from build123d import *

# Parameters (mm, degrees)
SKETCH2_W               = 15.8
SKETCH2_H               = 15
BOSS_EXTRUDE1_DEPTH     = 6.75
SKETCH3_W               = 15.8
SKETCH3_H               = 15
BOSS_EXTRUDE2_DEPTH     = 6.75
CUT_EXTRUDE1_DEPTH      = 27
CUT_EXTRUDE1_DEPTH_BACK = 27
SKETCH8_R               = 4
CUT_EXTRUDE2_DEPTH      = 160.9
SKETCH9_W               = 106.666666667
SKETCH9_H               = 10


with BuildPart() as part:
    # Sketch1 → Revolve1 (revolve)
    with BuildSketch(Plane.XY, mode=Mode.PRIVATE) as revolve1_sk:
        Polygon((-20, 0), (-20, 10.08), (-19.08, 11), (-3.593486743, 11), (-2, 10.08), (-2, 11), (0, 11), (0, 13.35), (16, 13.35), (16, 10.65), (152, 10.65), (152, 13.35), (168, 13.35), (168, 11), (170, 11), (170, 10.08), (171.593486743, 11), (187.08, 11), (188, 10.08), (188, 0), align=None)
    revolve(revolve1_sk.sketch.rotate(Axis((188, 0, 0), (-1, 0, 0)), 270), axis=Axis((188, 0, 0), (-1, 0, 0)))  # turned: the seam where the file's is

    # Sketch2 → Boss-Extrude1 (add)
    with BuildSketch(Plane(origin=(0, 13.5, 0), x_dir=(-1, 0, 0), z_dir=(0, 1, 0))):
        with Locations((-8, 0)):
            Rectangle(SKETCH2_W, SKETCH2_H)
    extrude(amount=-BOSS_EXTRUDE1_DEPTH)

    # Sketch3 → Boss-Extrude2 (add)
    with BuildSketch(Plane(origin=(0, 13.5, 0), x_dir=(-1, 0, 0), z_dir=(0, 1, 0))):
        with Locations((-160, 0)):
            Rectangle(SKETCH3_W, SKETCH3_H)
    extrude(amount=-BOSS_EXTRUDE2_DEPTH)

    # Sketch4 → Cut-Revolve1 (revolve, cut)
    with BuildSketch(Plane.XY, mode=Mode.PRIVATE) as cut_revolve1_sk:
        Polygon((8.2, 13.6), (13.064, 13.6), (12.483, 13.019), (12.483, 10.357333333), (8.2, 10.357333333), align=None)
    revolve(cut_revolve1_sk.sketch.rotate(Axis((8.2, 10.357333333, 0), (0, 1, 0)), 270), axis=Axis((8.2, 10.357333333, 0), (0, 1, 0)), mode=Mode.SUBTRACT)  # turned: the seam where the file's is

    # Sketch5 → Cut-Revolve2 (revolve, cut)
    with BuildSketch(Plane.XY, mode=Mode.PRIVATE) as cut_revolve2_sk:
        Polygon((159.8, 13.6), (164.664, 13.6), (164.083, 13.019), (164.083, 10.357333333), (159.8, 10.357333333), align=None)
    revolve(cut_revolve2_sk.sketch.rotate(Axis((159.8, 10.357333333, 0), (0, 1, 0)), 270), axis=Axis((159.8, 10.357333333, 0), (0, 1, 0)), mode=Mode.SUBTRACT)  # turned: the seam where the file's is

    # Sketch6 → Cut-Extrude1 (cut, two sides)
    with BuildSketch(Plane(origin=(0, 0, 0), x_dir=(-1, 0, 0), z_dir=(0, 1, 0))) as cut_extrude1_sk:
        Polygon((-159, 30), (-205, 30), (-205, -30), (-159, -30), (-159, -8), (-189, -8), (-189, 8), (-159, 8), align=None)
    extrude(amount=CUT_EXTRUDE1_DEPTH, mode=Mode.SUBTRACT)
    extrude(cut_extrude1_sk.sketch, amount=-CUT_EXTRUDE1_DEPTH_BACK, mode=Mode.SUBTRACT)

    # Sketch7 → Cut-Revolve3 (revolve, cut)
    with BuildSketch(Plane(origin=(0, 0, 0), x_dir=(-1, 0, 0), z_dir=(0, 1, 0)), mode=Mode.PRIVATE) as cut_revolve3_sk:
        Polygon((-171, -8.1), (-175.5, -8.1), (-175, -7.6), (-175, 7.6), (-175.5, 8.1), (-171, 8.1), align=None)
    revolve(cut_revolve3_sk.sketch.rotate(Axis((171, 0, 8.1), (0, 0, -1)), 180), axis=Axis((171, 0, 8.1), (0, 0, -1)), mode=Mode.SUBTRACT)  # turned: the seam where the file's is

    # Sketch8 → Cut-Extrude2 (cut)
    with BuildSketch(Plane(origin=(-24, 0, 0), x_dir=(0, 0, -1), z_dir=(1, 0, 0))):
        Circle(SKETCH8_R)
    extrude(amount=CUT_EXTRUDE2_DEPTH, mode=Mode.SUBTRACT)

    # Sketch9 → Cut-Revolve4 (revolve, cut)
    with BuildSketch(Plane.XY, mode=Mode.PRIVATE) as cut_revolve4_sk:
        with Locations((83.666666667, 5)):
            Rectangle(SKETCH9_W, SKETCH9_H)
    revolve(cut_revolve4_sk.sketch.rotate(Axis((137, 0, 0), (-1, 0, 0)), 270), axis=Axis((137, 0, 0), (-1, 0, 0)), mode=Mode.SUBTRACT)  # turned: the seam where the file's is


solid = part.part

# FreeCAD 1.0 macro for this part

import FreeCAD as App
import Part
import Sketcher
from FreeCAD import Vector
Q = App.Units.Quantity


def add_polygon(sketch, points):
    """Adds a closed chain of lines whose ends are joined by coincident constraints."""
    first, n = sketch.GeometryCount, len(points)
    for a, b in zip(points, points[1:] + points[:1]):
        sketch.addGeometry(Part.LineSegment(App.Vector(*a, 0), App.Vector(*b, 0)), False)
    for i in range(n):
        sketch.addConstraint(Sketcher.Constraint("Coincident", first + i, 2, first + (i + 1) % n, 1))

doc = App.newDocument("Part")
body = doc.addObject("PartDesign::Body", "Body")

# Sketch on XY plane
sketch1 = doc.addObject("Sketcher::SketchObject", "Sketch")
body.addObject(sketch1)
sketch1.AttachmentSupport = (doc.XY_Plane, [""])
sketch1.MapMode = "FlatFace"
add_polygon(sketch1, [(-20, 10.08), (-20, 0), (188, 0), (188, 10.08), (187.08, 11), (171.593487, 11), (170, 10.08), (170, 11), (168, 11), (168, 13.35), (152, 13.35), (152, 10.65), (16, 10.65), (16, 13.35), (0, 13.35), (0, 11), (-2, 11), (-2, 10.08), (-3.593487, 11), (-19.08, 11)])  # lines 0-19
sketch1.addConstraint([
    Sketcher.Constraint("Vertical", 0),
    Sketcher.Constraint("Horizontal", 1),
    Sketcher.Constraint("Vertical", 2),
    Sketcher.Constraint("Horizontal", 4),
    Sketcher.Constraint("Vertical", 6),
    Sketcher.Constraint("Horizontal", 7),
    Sketcher.Constraint("Vertical", 8),
    Sketcher.Constraint("Horizontal", 9),
    Sketcher.Constraint("Vertical", 10),
    Sketcher.Constraint("Horizontal", 11),
    Sketcher.Constraint("Vertical", 12),
    Sketcher.Constraint("Horizontal", 13),
    Sketcher.Constraint("Vertical", 14),
    Sketcher.Constraint("Horizontal", 15),
    Sketcher.Constraint("Vertical", 16),
    Sketcher.Constraint("Horizontal", 18),
    Sketcher.Constraint("PointOnObject", 0, 2, -1),
    Sketcher.Constraint("PointOnObject", 13, 2, -2),
    Sketcher.Constraint("Perpendicular", 3, 19),
    Sketcher.Constraint("Horizontal", 2, 2, 5, 2),
    Sketcher.Constraint("Horizontal", 4, 2, 6, 2),
    Sketcher.Constraint("Horizontal", 9, 2, 12, 2),
    Sketcher.Constraint("Horizontal", 7, 2, 14, 2),
    Sketcher.Constraint("Horizontal", 5, 2, 16, 2),
    Sketcher.Constraint("Horizontal", 15, 2, 17, 2),
    Sketcher.Constraint("Horizontal", 16, 2, 19, 2),
    Sketcher.Constraint("Equal", 9, 13),
    Sketcher.Constraint("Equal", 7, 15),
    Sketcher.Constraint("Equal", 4, 18),
    Sketcher.Constraint("Equal", 5, 17),
    Sketcher.Constraint("Equal", 3, 19),
    Sketcher.Constraint("DistanceX", 1, 1, 1, 2, Q("208 mm")),
    Sketcher.Constraint("DistanceX", 7, 2, 7, 1, Q("2 mm")),
    Sketcher.Constraint("DistanceX", 9, 2, 9, 1, Q("16 mm")),
    Sketcher.Constraint("DistanceX", 11, 2, 11, 1, Q("136 mm")),
    Sketcher.Constraint("Angle", 5, Q("-150 deg")),
    Sketcher.Constraint("DistanceY", 10, 2, 10, 1, Q("2.7 mm")),
    Sketcher.Constraint("DistanceY", -1, 1, 3, 2, Q("11 mm")),
    Sketcher.Constraint("DistanceY", 0, 2, 0, 1, Q("10.08 mm")),
    Sketcher.Constraint("DistanceY", 8, 1, 8, 2, Q("2.35 mm")),
])
revolution = doc.addObject("PartDesign::Revolution", "Revolution")
body.addObject(revolution)
revolution.Profile = sketch1
revolution.ReferenceAxis = (sketch1, ["H_Axis"])
revolution.Angle = 360

# Sketch on XZ plane
sketch2 = doc.addObject("Sketcher::SketchObject", "Sketch001")
body.addObject(sketch2)
sketch2.AttachmentSupport = (doc.XZ_Plane, [""])
sketch2.MapMode = "FlatFace"
sketch2.AttachmentOffset = App.Placement(Vector(0, 0, -13.5), App.Rotation())
add_polygon(sketch2, [(15.9, 7.5), (15.9, -7.5), (0.1, -7.5), (0.1, 7.5)])  # lines 0-3
sketch2.addConstraint([
    Sketcher.Constraint("Vertical", 0),
    Sketcher.Constraint("Horizontal", 1),
    Sketcher.Constraint("Vertical", 2),
    Sketcher.Constraint("Horizontal", 3),
    Sketcher.Constraint("DistanceY", 0, 2, 0, 1, Q("15 mm")),
    Sketcher.Constraint("DistanceX", 1, 2, 1, 1, Q("15.8 mm")),
    Sketcher.Constraint("DistanceX", -1, 1, 0, 2, Q("15.9 mm")),
    Sketcher.Constraint("DistanceY", 0, 2, -1, 1, Q("7.5 mm")),
])
pad1 = doc.addObject("PartDesign::Pad", "Pad")
body.addObject(pad1)
pad1.Profile = sketch2
pad1.Length = 6.75

# Sketch on XZ plane
sketch3 = doc.addObject("Sketcher::SketchObject", "Sketch002")
body.addObject(sketch3)
sketch3.AttachmentSupport = (doc.XZ_Plane, [""])
sketch3.MapMode = "FlatFace"
sketch3.AttachmentOffset = App.Placement(Vector(0, 0, -13.5), App.Rotation())
add_polygon(sketch3, [(167.9, 7.5), (167.9, -7.5), (152.1, -7.5), (152.1, 7.5)])  # lines 0-3
sketch3.addConstraint([
    Sketcher.Constraint("Vertical", 0),
    Sketcher.Constraint("Horizontal", 1),
    Sketcher.Constraint("Vertical", 2),
    Sketcher.Constraint("Horizontal", 3),
    Sketcher.Constraint("DistanceY", 0, 2, 0, 1, Q("15 mm")),
    Sketcher.Constraint("DistanceX", 1, 2, 1, 1, Q("15.8 mm")),
    Sketcher.Constraint("DistanceX", -1, 1, 0, 2, Q("167.9 mm")),
    Sketcher.Constraint("DistanceY", 0, 2, -1, 1, Q("7.5 mm")),
])
pad2 = doc.addObject("PartDesign::Pad", "Pad001")
body.addObject(pad2)
pad2.Profile = sketch3
pad2.Length = 6.75

# Sketch on XY plane
sketch4 = doc.addObject("Sketcher::SketchObject", "Sketch003")
body.addObject(sketch4)
sketch4.AttachmentSupport = (doc.XY_Plane, [""])
sketch4.MapMode = "FlatFace"
add_polygon(sketch4, [(13.064, 13.6), (8.2, 13.6), (8.2, 10.357333), (12.483, 10.357333), (12.483, 13.019)])  # lines 0-4
sketch4.addGeometry(Part.LineSegment(Vector(8.2, 10.357333, 0), Vector(8.2, 13.6, 0)), True)  # axis
sketch4.addConstraint([
    Sketcher.Constraint("Horizontal", 0),
    Sketcher.Constraint("Vertical", 1),
    Sketcher.Constraint("Horizontal", 2),
    Sketcher.Constraint("Vertical", 3),
    Sketcher.Constraint("Vertical", 5),
    Sketcher.Constraint("Coincident", 5, 1, 1, 2),
    Sketcher.Constraint("Horizontal", 4, 2, 5, 2),
    Sketcher.Constraint("Angle", 4, Q("45 deg")),
    Sketcher.Constraint("DistanceX", -1, 1, 0, 2, Q("8.2 mm")),
    Sketcher.Constraint("DistanceY", -1, 1, 0, 2, Q("13.6 mm")),
    Sketcher.Constraint("DistanceX", 0, 2, 0, 1, Q("4.864 mm")),
    Sketcher.Constraint("DistanceX", 2, 1, 2, 2, Q("4.283 mm")),
    Sketcher.Constraint("DistanceY", 1, 2, 1, 1, Q("3.242667 mm")),
])
groove = doc.addObject("PartDesign::Groove", "Groove")
body.addObject(groove)
groove.Profile = sketch4
groove.ReferenceAxis = (sketch4, ["Axis0"])
groove.Angle = 360

# Sketch on XY plane
sketch5 = doc.addObject("Sketcher::SketchObject", "Sketch004")
body.addObject(sketch5)
sketch5.AttachmentSupport = (doc.XY_Plane, [""])
sketch5.MapMode = "FlatFace"
add_polygon(sketch5, [(164.664, 13.6), (159.8, 13.6), (159.8, 10.357333), (164.083, 10.357333), (164.083, 13.019)])  # lines 0-4
sketch5.addGeometry(Part.LineSegment(Vector(159.8, 10.357333, 0), Vector(159.8, 13.6, 0)), True)  # axis
sketch5.addConstraint([
    Sketcher.Constraint("Horizontal", 0),
    Sketcher.Constraint("Vertical", 1),
    Sketcher.Constraint("Horizontal", 2),
    Sketcher.Constraint("Vertical", 3),
    Sketcher.Constraint("Vertical", 5),
    Sketcher.Constraint("Coincident", 5, 1, 1, 2),
    Sketcher.Constraint("Horizontal", 4, 2, 5, 2),
    Sketcher.Constraint("Angle", 4, Q("45 deg")),
    Sketcher.Constraint("DistanceX", -1, 1, 0, 2, Q("159.8 mm")),
    Sketcher.Constraint("DistanceY", -1, 1, 0, 2, Q("13.6 mm")),
    Sketcher.Constraint("DistanceX", 0, 2, 0, 1, Q("4.864 mm")),
    Sketcher.Constraint("DistanceX", 2, 1, 2, 2, Q("4.283 mm")),
    Sketcher.Constraint("DistanceY", 1, 2, 1, 1, Q("3.242667 mm")),
])
groove2 = doc.addObject("PartDesign::Groove", "Groove001")
body.addObject(groove2)
groove2.Profile = sketch5
groove2.ReferenceAxis = (sketch5, ["Axis0"])
groove2.Angle = 360

# Sketch on XZ plane
sketch6 = doc.addObject("Sketcher::SketchObject", "Sketch005")
body.addObject(sketch6)
sketch6.AttachmentSupport = (doc.XZ_Plane, [""])
sketch6.MapMode = "FlatFace"
add_polygon(sketch6, [(159, 30), (205, 30), (205, -30), (159, -30), (159, -8), (189, -8), (189, 8), (159, 8)])  # lines 0-7
sketch6.addConstraint([
    Sketcher.Constraint("Horizontal", 0),
    Sketcher.Constraint("Vertical", 1),
    Sketcher.Constraint("Horizontal", 2),
    Sketcher.Constraint("Vertical", 3),
    Sketcher.Constraint("Horizontal", 4),
    Sketcher.Constraint("Vertical", 5),
    Sketcher.Constraint("Horizontal", 6),
    Sketcher.Constraint("Vertical", 7),
    Sketcher.Constraint("Symmetric", 3, 2, 6, 2, -1),
    Sketcher.Constraint("Equal", 3, 7),
    Sketcher.Constraint("DistanceX", 0, 1, 0, 2, Q("46 mm")),
    Sketcher.Constraint("DistanceX", 4, 1, 4, 2, Q("30 mm")),
    Sketcher.Constraint("DistanceY", 1, 2, 1, 1, Q("60 mm")),
    Sketcher.Constraint("DistanceY", 3, 1, 3, 2, Q("22 mm")),
    Sketcher.Constraint("DistanceX", -1, 1, 0, 2, Q("205 mm")),
])
pocket1 = doc.addObject("PartDesign::Pocket", "Pocket")
body.addObject(pocket1)
pocket1.Profile = sketch6
pocket1.Type = "ThroughAll"
pocket1.Midplane = True

# Sketch on XZ plane
sketch7 = doc.addObject("Sketcher::SketchObject", "Sketch006")
body.addObject(sketch7)
sketch7.AttachmentSupport = (doc.XZ_Plane, [""])
sketch7.MapMode = "FlatFace"
add_polygon(sketch7, [(175.5, -8.1), (171, -8.1), (171, 8.1), (175.5, 8.1), (175, 7.6), (175, -7.6)])  # lines 0-5
sketch7.addGeometry(Part.LineSegment(Vector(171, 8.1, 0), Vector(171, -8.1, 0)), True)  # axis
sketch7.addConstraint([
    Sketcher.Constraint("Horizontal", 0),
    Sketcher.Constraint("Vertical", 1),
    Sketcher.Constraint("Horizontal", 2),
    Sketcher.Constraint("Vertical", 4),
    Sketcher.Constraint("Vertical", 6),
    Sketcher.Constraint("Coincident", 6, 1, 1, 2),
    Sketcher.Constraint("Symmetric", 2, 2, 5, 2, -1),
    Sketcher.Constraint("Perpendicular", 3, 5),
    Sketcher.Constraint("Horizontal", 5, 2, 6, 2),
    Sketcher.Constraint("Equal", 3, 5),
    Sketcher.Constraint("DistanceX", 0, 2, 0, 1, Q("4.5 mm")),
    Sketcher.Constraint("DistanceY", 1, 1, 1, 2, Q("16.2 mm")),
    Sketcher.Constraint("DistanceY", 4, 2, 4, 1, Q("15.2 mm")),
    Sketcher.Constraint("DistanceX", -1, 1, 0, 2, Q("171 mm")),
])
groove3 = doc.addObject("PartDesign::Groove", "Groove002")
body.addObject(groove3)
groove3.Profile = sketch7
groove3.ReferenceAxis = (sketch7, ["Axis0"])
groove3.Angle = 360

# Sketch on YZ plane
sketch8 = doc.addObject("Sketcher::SketchObject", "Sketch007")
body.addObject(sketch8)
sketch8.AttachmentSupport = (doc.YZ_Plane, [""])
sketch8.MapMode = "FlatFace"
sketch8.AttachmentOffset = App.Placement(Vector(0, 0, -24), App.Rotation())
sketch8.addGeometry(Part.Circle(Vector(0, 0, 0), Vector(0, 0, 1), 4), False)
sketch8.addConstraint([
    Sketcher.Constraint("Coincident", 0, 3, -1, 1),
    Sketcher.Constraint("Diameter", 0, Q("8 mm")),
])
pocket2 = doc.addObject("PartDesign::Pocket", "Pocket001")
body.addObject(pocket2)
pocket2.Profile = sketch8
pocket2.Length = 160.9
pocket2.Reversed = True

# Sketch on XY plane
sketch9 = doc.addObject("Sketcher::SketchObject", "Sketch008")
body.addObject(sketch9)
sketch9.AttachmentSupport = (doc.XY_Plane, [""])
sketch9.MapMode = "FlatFace"
add_polygon(sketch9, [(30.333333, 10), (30.333333, 0), (137, 0), (137, 10)])  # lines 0-3
sketch9.addConstraint([
    Sketcher.Constraint("Vertical", 0),
    Sketcher.Constraint("Horizontal", 1),
    Sketcher.Constraint("Vertical", 2),
    Sketcher.Constraint("Horizontal", 3),
    Sketcher.Constraint("PointOnObject", 0, 2, -1),
    Sketcher.Constraint("DistanceY", 0, 2, 0, 1, Q("10 mm")),
    Sketcher.Constraint("DistanceX", -1, 1, 1, 2, Q("137 mm")),
    Sketcher.Constraint("DistanceX", 1, 1, 1, 2, Q("106.666667 mm")),
])
groove4 = doc.addObject("PartDesign::Groove", "Groove003")
body.addObject(groove4)
groove4.Profile = sketch9
groove4.ReferenceAxis = (sketch9, ["H_Axis"])
groove4.Angle = 360

doc.recompute()
